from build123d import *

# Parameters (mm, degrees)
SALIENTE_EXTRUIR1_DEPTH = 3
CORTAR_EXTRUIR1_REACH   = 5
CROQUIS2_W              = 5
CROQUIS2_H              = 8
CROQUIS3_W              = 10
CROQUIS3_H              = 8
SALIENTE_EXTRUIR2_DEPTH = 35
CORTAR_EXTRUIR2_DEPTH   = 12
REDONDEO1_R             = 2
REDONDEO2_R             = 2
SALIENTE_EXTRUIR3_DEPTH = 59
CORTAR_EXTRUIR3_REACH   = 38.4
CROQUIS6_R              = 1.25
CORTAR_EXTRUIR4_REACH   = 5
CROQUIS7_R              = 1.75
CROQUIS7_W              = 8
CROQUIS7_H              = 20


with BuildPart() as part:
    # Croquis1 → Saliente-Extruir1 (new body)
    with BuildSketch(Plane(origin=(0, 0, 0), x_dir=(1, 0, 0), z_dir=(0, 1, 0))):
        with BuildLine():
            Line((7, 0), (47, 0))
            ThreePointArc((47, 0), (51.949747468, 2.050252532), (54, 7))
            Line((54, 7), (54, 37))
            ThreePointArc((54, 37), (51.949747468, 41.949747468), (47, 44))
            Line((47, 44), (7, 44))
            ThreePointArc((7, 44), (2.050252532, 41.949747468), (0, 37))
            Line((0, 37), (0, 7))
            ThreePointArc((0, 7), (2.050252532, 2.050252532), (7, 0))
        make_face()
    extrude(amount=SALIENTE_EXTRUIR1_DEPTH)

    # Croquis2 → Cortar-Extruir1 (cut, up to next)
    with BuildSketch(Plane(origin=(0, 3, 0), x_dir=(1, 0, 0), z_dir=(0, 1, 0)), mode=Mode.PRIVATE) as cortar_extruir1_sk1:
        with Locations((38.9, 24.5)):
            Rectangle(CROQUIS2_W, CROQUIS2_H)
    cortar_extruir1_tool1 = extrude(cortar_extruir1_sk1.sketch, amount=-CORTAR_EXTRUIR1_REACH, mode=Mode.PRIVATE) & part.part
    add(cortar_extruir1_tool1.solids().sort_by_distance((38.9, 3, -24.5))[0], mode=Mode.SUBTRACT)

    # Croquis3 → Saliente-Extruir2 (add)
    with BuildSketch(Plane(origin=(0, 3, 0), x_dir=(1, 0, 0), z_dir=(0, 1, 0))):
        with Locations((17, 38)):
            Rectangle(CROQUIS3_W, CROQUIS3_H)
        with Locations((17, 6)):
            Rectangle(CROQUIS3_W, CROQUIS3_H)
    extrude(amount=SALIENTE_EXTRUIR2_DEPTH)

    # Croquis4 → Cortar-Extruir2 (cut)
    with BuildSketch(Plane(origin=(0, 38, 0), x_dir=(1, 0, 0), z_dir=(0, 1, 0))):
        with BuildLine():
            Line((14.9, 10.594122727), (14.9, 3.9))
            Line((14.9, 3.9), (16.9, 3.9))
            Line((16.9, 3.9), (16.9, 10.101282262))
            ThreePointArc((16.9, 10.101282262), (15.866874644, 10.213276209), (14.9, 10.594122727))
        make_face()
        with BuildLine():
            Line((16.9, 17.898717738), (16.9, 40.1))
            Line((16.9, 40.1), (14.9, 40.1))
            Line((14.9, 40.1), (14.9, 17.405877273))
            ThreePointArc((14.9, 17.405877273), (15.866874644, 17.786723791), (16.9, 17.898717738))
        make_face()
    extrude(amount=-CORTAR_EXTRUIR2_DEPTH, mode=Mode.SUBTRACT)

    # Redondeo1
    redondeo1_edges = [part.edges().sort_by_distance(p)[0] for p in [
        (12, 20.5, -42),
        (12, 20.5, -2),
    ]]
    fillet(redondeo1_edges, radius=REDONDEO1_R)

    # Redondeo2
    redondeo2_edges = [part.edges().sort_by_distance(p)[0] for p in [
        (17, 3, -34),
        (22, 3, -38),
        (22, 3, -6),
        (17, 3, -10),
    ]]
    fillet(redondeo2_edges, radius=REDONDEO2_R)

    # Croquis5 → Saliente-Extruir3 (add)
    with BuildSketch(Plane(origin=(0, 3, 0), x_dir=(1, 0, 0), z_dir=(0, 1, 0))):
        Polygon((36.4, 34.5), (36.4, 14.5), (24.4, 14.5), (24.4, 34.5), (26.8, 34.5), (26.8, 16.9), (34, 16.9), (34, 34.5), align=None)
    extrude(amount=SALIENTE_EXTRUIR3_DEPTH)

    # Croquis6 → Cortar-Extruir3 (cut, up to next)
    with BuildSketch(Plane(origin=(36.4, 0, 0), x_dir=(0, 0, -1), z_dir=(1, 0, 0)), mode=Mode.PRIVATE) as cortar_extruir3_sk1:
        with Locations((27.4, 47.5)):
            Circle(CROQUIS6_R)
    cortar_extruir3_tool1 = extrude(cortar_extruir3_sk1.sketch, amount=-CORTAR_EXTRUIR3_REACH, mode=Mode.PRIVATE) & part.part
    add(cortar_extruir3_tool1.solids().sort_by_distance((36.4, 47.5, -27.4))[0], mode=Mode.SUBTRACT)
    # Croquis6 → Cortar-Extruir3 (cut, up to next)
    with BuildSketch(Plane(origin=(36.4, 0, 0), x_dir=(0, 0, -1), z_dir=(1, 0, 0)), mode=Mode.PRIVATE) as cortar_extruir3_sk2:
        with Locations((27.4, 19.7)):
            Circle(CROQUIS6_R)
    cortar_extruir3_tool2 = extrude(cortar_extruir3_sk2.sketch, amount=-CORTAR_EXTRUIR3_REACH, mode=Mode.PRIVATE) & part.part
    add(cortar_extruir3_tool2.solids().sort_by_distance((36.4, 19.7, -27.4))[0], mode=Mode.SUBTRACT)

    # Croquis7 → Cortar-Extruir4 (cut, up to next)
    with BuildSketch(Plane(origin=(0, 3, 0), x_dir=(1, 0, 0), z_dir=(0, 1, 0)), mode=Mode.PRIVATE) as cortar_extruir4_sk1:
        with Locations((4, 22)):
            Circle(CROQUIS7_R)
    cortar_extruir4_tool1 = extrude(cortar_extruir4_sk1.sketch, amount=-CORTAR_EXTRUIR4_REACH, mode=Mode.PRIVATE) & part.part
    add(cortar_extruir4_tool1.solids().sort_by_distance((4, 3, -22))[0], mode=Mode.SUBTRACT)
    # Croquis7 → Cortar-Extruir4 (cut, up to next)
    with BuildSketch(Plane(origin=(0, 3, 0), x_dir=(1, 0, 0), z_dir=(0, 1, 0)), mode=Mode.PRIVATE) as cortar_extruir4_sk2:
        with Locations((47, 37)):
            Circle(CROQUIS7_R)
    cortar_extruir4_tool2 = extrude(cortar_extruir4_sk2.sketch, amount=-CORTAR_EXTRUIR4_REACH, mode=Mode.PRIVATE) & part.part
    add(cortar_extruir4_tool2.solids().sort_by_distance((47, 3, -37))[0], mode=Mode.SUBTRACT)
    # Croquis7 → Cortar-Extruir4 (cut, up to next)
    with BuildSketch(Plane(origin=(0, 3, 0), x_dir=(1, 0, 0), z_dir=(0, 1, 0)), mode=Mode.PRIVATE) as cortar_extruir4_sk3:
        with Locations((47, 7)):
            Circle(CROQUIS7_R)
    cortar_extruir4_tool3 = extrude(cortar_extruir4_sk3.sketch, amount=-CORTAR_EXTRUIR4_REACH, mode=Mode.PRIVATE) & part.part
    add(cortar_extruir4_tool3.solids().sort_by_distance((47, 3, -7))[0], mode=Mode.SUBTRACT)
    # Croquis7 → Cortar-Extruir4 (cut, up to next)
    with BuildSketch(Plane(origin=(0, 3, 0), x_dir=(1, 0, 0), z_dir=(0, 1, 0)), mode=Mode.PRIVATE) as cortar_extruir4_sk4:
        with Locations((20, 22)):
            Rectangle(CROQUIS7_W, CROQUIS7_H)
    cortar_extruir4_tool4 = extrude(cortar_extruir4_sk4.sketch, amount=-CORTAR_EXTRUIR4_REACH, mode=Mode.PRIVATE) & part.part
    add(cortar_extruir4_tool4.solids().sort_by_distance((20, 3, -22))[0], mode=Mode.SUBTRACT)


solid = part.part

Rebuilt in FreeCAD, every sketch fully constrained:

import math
import FreeCAD as App
import Part
import Sketcher

V = App.Vector
Q = App.Units.Quantity


def edges_at(feature, points):
    """Names of the edges that pass closest to the given points."""
    edges = feature.Shape.Edges
    near = lambda p: min(range(len(edges)), key=lambda i: edges[i].distToShape(Part.Vertex(*p))[0])
    return sorted({f"Edge{near(p) + 1}" for p in points})

doc = App.newDocument("Part")
body = doc.addObject("PartDesign::Body", "Body")

sketch1 = body.newObject("Sketcher::SketchObject", "Sketch")
sketch1.AttachmentSupport = (doc.getObject("XZ_Plane"), [""])
sketch1.MapMode = "FlatFace"
sketch1.addGeometry(Part.LineSegment(V(7, 0, 0), V(47, 0, 0)), False)
sketch1.addGeometry(Part.ArcOfCircle(Part.Circle(V(47, -7, 0), V(0, 0, 1), 7), math.radians(0), math.radians(90)), False)
sketch1.addGeometry(Part.LineSegment(V(54, -7, 0), V(54, -37, 0)), False)
sketch1.addGeometry(Part.ArcOfCircle(Part.Circle(V(47, -37, 0), V(0, 0, 1), 7), math.radians(-90), math.radians(0)), False)
sketch1.addGeometry(Part.LineSegment(V(47, -44, 0), V(7, -44, 0)), False)
sketch1.addGeometry(Part.ArcOfCircle(Part.Circle(V(7, -37, 0), V(0, 0, 1), 7), math.radians(-180), math.radians(-90)), False)
sketch1.addGeometry(Part.LineSegment(V(0, -37, 0), V(0, -7, 0)), False)
sketch1.addGeometry(Part.ArcOfCircle(Part.Circle(V(7, -7, 0), V(0, 0, 1), 7), math.radians(90), math.radians(180)), False)
sketch1.addConstraint(Sketcher.Constraint("Tangent", 0, 2, 1, 2))
sketch1.addConstraint(Sketcher.Constraint("Tangent", 1, 1, 2, 1))
sketch1.addConstraint(Sketcher.Constraint("Tangent", 2, 2, 3, 2))
sketch1.addConstraint(Sketcher.Constraint("Tangent", 3, 1, 4, 1))
sketch1.addConstraint(Sketcher.Constraint("Tangent", 4, 2, 5, 2))
sketch1.addConstraint(Sketcher.Constraint("Tangent", 5, 1, 6, 1))
sketch1.addConstraint(Sketcher.Constraint("Tangent", 6, 2, 7, 2))
sketch1.addConstraint(Sketcher.Constraint("Tangent", 7, 1, 0, 1))
sketch1.addConstraint(Sketcher.Constraint("Horizontal", 0))
sketch1.addConstraint(Sketcher.Constraint("Vertical", 2))
sketch1.addConstraint(Sketcher.Constraint("Horizontal", 4))
sketch1.addConstraint(Sketcher.Constraint("Vertical", 6))
sketch1.addConstraint(Sketcher.Constraint("Equal", 1, 3))
sketch1.addConstraint(Sketcher.Constraint("Equal", 3, 5))
sketch1.addConstraint(Sketcher.Constraint("Equal", 5, 7))
sketch1.addConstraint(Sketcher.Constraint("PointOnObject", 0, 2, -1))
sketch1.addConstraint(Sketcher.Constraint("PointOnObject", 5, 1, -2))
sketch1.addConstraint(Sketcher.Constraint("Radius", 1, Q("7 mm")))
sketch1.addConstraint(Sketcher.Constraint("DistanceX", 0, 1, 0, 2, Q("40 mm")))
sketch1.addConstraint(Sketcher.Constraint("DistanceY", 2, 2, 2, 1, Q("30 mm")))
pad1 = body.newObject("PartDesign::Pad", "Pad")
pad1.Profile = sketch1
pad1.Length = 3
pad1.Reversed = True

sketch2 = body.newObject("Sketcher::SketchObject", "Sketch001")
sketch2.AttachmentSupport = (doc.getObject("XZ_Plane"), [""])
sketch2.MapMode = "FlatFace"
sketch2.AttachmentOffset = App.Placement(V(0, 0, -3), App.Rotation())
sketch2.addGeometry(Part.LineSegment(V(36, -28, 0), V(36, -20, 0)), False)
sketch2.addGeometry(Part.LineSegment(V(36, -20, 0), V(41, -20, 0)), False)
sketch2.addGeometry(Part.LineSegment(V(41, -20, 0), V(41, -28, 0)), False)
sketch2.addGeometry(Part.LineSegment(V(41, -28, 0), V(36, -28, 0)), False)
sketch2.addConstraint(Sketcher.Constraint("Coincident", 0, 2, 1, 1))
sketch2.addConstraint(Sketcher.Constraint("Coincident", 1, 2, 2, 1))
sketch2.addConstraint(Sketcher.Constraint("Coincident", 2, 2, 3, 1))
sketch2.addConstraint(Sketcher.Constraint("Coincident", 3, 2, 0, 1))
sketch2.addConstraint(Sketcher.Constraint("Vertical", 0))
sketch2.addConstraint(Sketcher.Constraint("Horizontal", 1))
sketch2.addConstraint(Sketcher.Constraint("Vertical", 2))
sketch2.addConstraint(Sketcher.Constraint("Horizontal", 3))
sketch2.addConstraint(Sketcher.Constraint("DistanceX", 1, 1, 1, 2, Q("5 mm")))
sketch2.addConstraint(Sketcher.Constraint("DistanceY", 0, 1, 0, 2, Q("8 mm")))
sketch2.addConstraint(Sketcher.Constraint("DistanceX", -1, 1, 0, 2, Q("36.4 mm")))
sketch2.addConstraint(Sketcher.Constraint("DistanceY", 0, 2, -1, 1, Q("20.5 mm")))
pocket1 = body.newObject("PartDesign::Pocket", "Pocket")
pocket1.Profile = sketch2
pocket1.Type = "UpToFirst"
pocket1.Reversed = True

sketch3 = body.newObject("Sketcher::SketchObject", "Sketch002")
sketch3.AttachmentSupport = (doc.getObject("XZ_Plane"), [""])
sketch3.MapMode = "FlatFace"
sketch3.AttachmentOffset = App.Placement(V(0, 0, -3), App.Rotation())
sketch3.addGeometry(Part.LineSegment(V(12, -42, 0), V(12, -34, 0)), False)
sketch3.addGeometry(Part.LineSegment(V(12, -34, 0), V(22, -34, 0)), False)
sketch3.addGeometry(Part.LineSegment(V(22, -34, 0), V(22, -42, 0)), False)
sketch3.addGeometry(Part.LineSegment(V(22, -42, 0), V(12, -42, 0)), False)
sketch3.addGeometry(Part.LineSegment(V(12, -10, 0), V(12, -2, 0)), False)
sketch3.addGeometry(Part.LineSegment(V(12, -2, 0), V(22, -2, 0)), False)
sketch3.addGeometry(Part.LineSegment(V(22, -2, 0), V(22, -10, 0)), False)
sketch3.addGeometry(Part.LineSegment(V(22, -10, 0), V(12, -10, 0)), False)
sketch3.addConstraint(Sketcher.Constraint("Coincident", 0, 2, 1, 1))
sketch3.addConstraint(Sketcher.Constraint("Coincident", 1, 2, 2, 1))
sketch3.addConstraint(Sketcher.Constraint("Coincident", 2, 2, 3, 1))
sketch3.addConstraint(Sketcher.Constraint("Coincident", 3, 2, 0, 1))
sketch3.addConstraint(Sketcher.Constraint("Coincident", 4, 2, 5, 1))
sketch3.addConstraint(Sketcher.Constraint("Coincident", 5, 2, 6, 1))
sketch3.addConstraint(Sketcher.Constraint("Coincident", 6, 2, 7, 1))
sketch3.addConstraint(Sketcher.Constraint("Coincident", 7, 2, 4, 1))
sketch3.addConstraint(Sketcher.Constraint("Vertical", 0))
sketch3.addConstraint(Sketcher.Constraint("Horizontal", 1))
sketch3.addConstraint(Sketcher.Constraint("Vertical", 2))
sketch3.addConstraint(Sketcher.Constraint("Horizontal", 3))
sketch3.addConstraint(Sketcher.Constraint("Vertical", 4))
sketch3.addConstraint(Sketcher.Constraint("Horizontal", 5))
sketch3.addConstraint(Sketcher.Constraint("Vertical", 6))
sketch3.addConstraint(Sketcher.Constraint("Horizontal", 7))
sketch3.addConstraint(Sketcher.Constraint("Vertical", 3, 2, 4, 2))
sketch3.addConstraint(Sketcher.Constraint("Vertical", 2, 2, 5, 2))
sketch3.addConstraint(Sketcher.Constraint("Equal", 2, 4))
sketch3.addConstraint(Sketcher.Constraint("DistanceX", 1, 1, 1, 2, Q("10 mm")))
sketch3.addConstraint(Sketcher.Constraint("DistanceY", 0, 1, 0, 2, Q("8 mm")))
sketch3.addConstraint(Sketcher.Constraint("DistanceX", -1, 1, 0, 2, Q("12 mm")))
sketch3.addConstraint(Sketcher.Constraint("DistanceY", 0, 2, -1, 1, Q("34 mm")))
sketch3.addConstraint(Sketcher.Constraint("DistanceY", 4, 2, -1, 1, Q("2 mm")))
pad2 = body.newObject("PartDesign::Pad", "Pad001")
pad2.Profile = sketch3
pad2.Length = 35
pad2.Reversed = True

sketch4 = body.newObject("Sketcher::SketchObject", "Sketch003")
sketch4.AttachmentSupport = (doc.getObject("XZ_Plane"), [""])
sketch4.MapMode = "FlatFace"
sketch4.AttachmentOffset = App.Placement(V(0, 0, -38), App.Rotation())
sketch4.addGeometry(Part.LineSegment(V(14.9, -10.6, 0), V(14.9, -3.9, 0)), False)
sketch4.addGeometry(Part.LineSegment(V(14.9, -3.9, 0), V(16.9, -3.9, 0)), False)
sketch4.addGeometry(Part.LineSegment(V(16.9, -3.9, 0), V(16.9, -10.1, 0)), False)
sketch4.addGeometry(Part.ArcOfCircle(Part.Circle(V(16.8, -14, 0), V(0, 0, 1), 3.9), math.radians(89), math.radians(119)), False)
sketch4.addGeometry(Part.LineSegment(V(16.9, -17.9, 0), V(16.9, -40.1, 0)), False)
sketch4.addGeometry(Part.LineSegment(V(16.9, -40.1, 0), V(14.9, -40.1, 0)), False)
sketch4.addGeometry(Part.LineSegment(V(14.9, -40.1, 0), V(14.9, -17.4, 0)), False)
sketch4.addGeometry(Part.ArcOfCircle(Part.Circle(V(16.8, -14, 0), V(0, 0, 1), 3.9), math.radians(-119), math.radians(-89)), False)
sketch4.addConstraint(Sketcher.Constraint("Coincident", 0, 2, 1, 1))
sketch4.addConstraint(Sketcher.Constraint("Coincident", 1, 2, 2, 1))
sketch4.addConstraint(Sketcher.Constraint("Coincident", 2, 2, 3, 1))
sketch4.addConstraint(Sketcher.Constraint("Coincident", 3, 2, 0, 1))
sketch4.addConstraint(Sketcher.Constraint("Coincident", 4, 2, 5, 1))
sketch4.addConstraint(Sketcher.Constraint("Coincident", 5, 2, 6, 1))
sketch4.addConstraint(Sketcher.Constraint("Coincident", 6, 2, 7, 1))
sketch4.addConstraint(Sketcher.Constraint("Coincident", 7, 2, 4, 1))
sketch4.addConstraint(Sketcher.Constraint("Vertical", 0))
sketch4.addConstraint(Sketcher.Constraint("Horizontal", 1))
sketch4.addConstraint(Sketcher.Constraint("Vertical", 2))
sketch4.addConstraint(Sketcher.Constraint("Vertical", 4))
sketch4.addConstraint(Sketcher.Constraint("Horizontal", 5))
sketch4.addConstraint(Sketcher.Constraint("Vertical", 6))
sketch4.addConstraint(Sketcher.Constraint("Coincident", 7, 3, 3, 3))
sketch4.addConstraint(Sketcher.Constraint("Equal", 3, 7))
sketch4.addConstraint(Sketcher.Constraint("Vertical", 2, 2, 4, 2))
sketch4.addConstraint(Sketcher.Constraint("Vertical", 3, 2, 5, 2))
sketch4.addConstraint(Sketcher.Constraint("Radius", 3, Q("3.9 mm")))
sketch4.addConstraint(Sketcher.Constraint("DistanceX", 1, 1, 1, 2, Q("2 mm")))
sketch4.addConstraint(Sketcher.Constraint("DistanceY", 3, 3, -1, 1, Q("14 mm")))
sketch4.addConstraint(Sketcher.Constraint("DistanceX", -1, 1, 3, 3, Q("16.8 mm")))
sketch4.addConstraint(Sketcher.Constraint("DistanceX", -1, 1, 0, 2, Q("14.9 mm")))
sketch4.addConstraint(Sketcher.Constraint("DistanceY", 0, 2, -1, 1, Q("3.9 mm")))
sketch4.addConstraint(Sketcher.Constraint("DistanceY", 4, 2, -1, 1, Q("40.1 mm")))
pocket2 = body.newObject("PartDesign::Pocket", "Pocket001")
pocket2.Profile = sketch4
pocket2.Length = 12
pocket2.Reversed = True
doc.recompute()

fillet = body.newObject("PartDesign::Fillet", "Fillet")
fillet.Base = (pocket2, edges_at(pocket2, [(12, 20.5, -42), (12, 20.5, -2)]))
fillet.Radius = 2
doc.recompute()

fillet2 = body.newObject("PartDesign::Fillet", "Fillet001")
fillet2.Base = (fillet, edges_at(fillet, [
    (17, 3, -34),
    (22, 3, -38),
    (22, 3, -6),
    (17, 3, -10),
]))
fillet2.Radius = 2

sketch5 = body.newObject("Sketcher::SketchObject", "Sketch004")
sketch5.AttachmentSupport = (doc.getObject("XZ_Plane"), [""])
sketch5.MapMode = "FlatFace"
sketch5.AttachmentOffset = App.Placement(V(0, 0, -3), App.Rotation())
sketch5.addGeometry(Part.LineSegment(V(36.4, -14.5, 0), V(36.4, -34.5, 0)), False)
sketch5.addGeometry(Part.LineSegment(V(36.4, -34.5, 0), V(34, -34.5, 0)), False)
sketch5.addGeometry(Part.LineSegment(V(34, -34.5, 0), V(34, -16.9, 0)), False)
sketch5.addGeometry(Part.LineSegment(V(34, -16.9, 0), V(26.8, -16.9, 0)), False)
sketch5.addGeometry(Part.LineSegment(V(26.8, -16.9, 0), V(26.8, -34.5, 0)), False)
sketch5.addGeometry(Part.LineSegment(V(26.8, -34.5, 0), V(24.4, -34.5, 0)), False)
sketch5.addGeometry(Part.LineSegment(V(24.4, -34.5, 0), V(24.4, -14.5, 0)), False)
sketch5.addGeometry(Part.LineSegment(V(24.4, -14.5, 0), V(36.4, -14.5, 0)), False)
sketch5.addConstraint(Sketcher.Constraint("Coincident", 0, 2, 1, 1))
sketch5.addConstraint(Sketcher.Constraint("Coincident", 1, 2, 2, 1))
sketch5.addConstraint(Sketcher.Constraint("Coincident", 2, 2, 3, 1))
sketch5.addConstraint(Sketcher.Constraint("Coincident", 3, 2, 4, 1))
sketch5.addConstraint(Sketcher.Constraint("Coincident", 4, 2, 5, 1))
sketch5.addConstraint(Sketcher.Constraint("Coincident", 5, 2, 6, 1))
sketch5.addConstraint(Sketcher.Constraint("Coincident", 6, 2, 7, 1))
sketch5.addConstraint(Sketcher.Constraint("Coincident", 7, 2, 0, 1))
sketch5.addConstraint(Sketcher.Constraint("Vertical", 0))
sketch5.addConstraint(Sketcher.Constraint("Horizontal", 1))
sketch5.addConstraint(Sketcher.Constraint("Vertical", 2))
sketch5.addConstraint(Sketcher.Constraint("Horizontal", 3))
sketch5.addConstraint(Sketcher.Constraint("Vertical", 4))
sketch5.addConstraint(Sketcher.Constraint("Horizontal", 5))
sketch5.addConstraint(Sketcher.Constraint("Vertical", 6))
sketch5.addConstraint(Sketcher.Constraint("Horizontal", 7))
sketch5.addConstraint(Sketcher.Constraint("Horizontal", 1, 2, 4, 2))
sketch5.addConstraint(Sketcher.Constraint("Equal", 1, 5))
sketch5.addConstraint(Sketcher.Constraint("DistanceX", 7, 1, 7, 2, Q("12 mm")))
sketch5.addConstraint(Sketcher.Constraint("DistanceY", 0, 2, 0, 1, Q("20 mm")))
sketch5.addConstraint(Sketcher.Constraint("DistanceX", 1, 2, 1, 1, Q("2.4 mm")))
sketch5.addConstraint(Sketcher.Constraint("DistanceY", 2, 1, 2, 2, Q("17.6 mm")))
sketch5.addConstraint(Sketcher.Constraint("DistanceX", -1, 1, 1, 2, Q("34 mm")))
sketch5.addConstraint(Sketcher.Constraint("DistanceY", 0, 2, -1, 1, Q("34.5 mm")))
pad3 = body.newObject("PartDesign::Pad", "Pad002")
pad3.Profile = sketch5
pad3.Length = 59
pad3.Reversed = True

sketch6 = body.newObject("Sketcher::SketchObject", "Sketch005")
sketch6.AttachmentSupport = (doc.getObject("YZ_Plane"), [""])
sketch6.MapMode = "FlatFace"
sketch6.AttachmentOffset = App.Placement(V(0, 0, 36.4), App.Rotation())
sketch6.addGeometry(Part.Circle(V(47.5, -27.4, 0), V(0, 0, 1), 1.2), False)
sketch6.addConstraint(Sketcher.Constraint("Diameter", 0, Q("2.5 mm")))
sketch6.addConstraint(Sketcher.Constraint("DistanceX", -1, 1, 0, 3, Q("47.5 mm")))
sketch6.addConstraint(Sketcher.Constraint("DistanceY", 0, 3, -1, 1, Q("27.4 mm")))
pocket3 = body.newObject("PartDesign::Pocket", "Pocket002")
pocket3.Profile = sketch6
pocket3.Type = "UpToFirst"

sketch7 = body.newObject("Sketcher::SketchObject", "Sketch006")
sketch7.AttachmentSupport = (doc.getObject("YZ_Plane"), [""])
sketch7.MapMode = "FlatFace"
sketch7.AttachmentOffset = App.Placement(V(0, 0, 36.4), App.Rotation())
sketch7.addGeometry(Part.Circle(V(19.7, -27.4, 0), V(0, 0, 1), 1.2), False)
sketch7.addConstraint(Sketcher.Constraint("Diameter", 0, Q("2.5 mm")))
sketch7.addConstraint(Sketcher.Constraint("DistanceX", -1, 1, 0, 3, Q("19.7 mm")))
sketch7.addConstraint(Sketcher.Constraint("DistanceY", 0, 3, -1, 1, Q("27.4 mm")))
pocket4 = body.newObject("PartDesign::Pocket", "Pocket003")
pocket4.Profile = sketch7
pocket4.Type = "UpToFirst"

sketch8 = body.newObject("Sketcher::SketchObject", "Sketch007")
sketch8.AttachmentSupport = (doc.getObject("XZ_Plane"), [""])
sketch8.MapMode = "FlatFace"
sketch8.AttachmentOffset = App.Placement(V(0, 0, -3), App.Rotation())
sketch8.addGeometry(Part.Circle(V(4, -22, 0), V(0, 0, 1), 1.8), False)
sketch8.addConstraint(Sketcher.Constraint("Diameter", 0, Q("3.5 mm")))
sketch8.addConstraint(Sketcher.Constraint("DistanceX", -1, 1, 0, 3, Q("4 mm")))
sketch8.addConstraint(Sketcher.Constraint("DistanceY", 0, 3, -1, 1, Q("22 mm")))
pocket5 = body.newObject("PartDesign::Pocket", "Pocket004")
pocket5.Profile = sketch8
pocket5.Type = "UpToFirst"
pocket5.Reversed = True

sketch9 = body.newObject("Sketcher::SketchObject", "Sketch008")
sketch9.AttachmentSupport = (doc.getObject("XZ_Plane"), [""])
sketch9.MapMode = "FlatFace"
sketch9.AttachmentOffset = App.Placement(V(0, 0, -3), App.Rotation())
sketch9.addGeometry(Part.Circle(V(47, -37, 0), V(0, 0, 1), 1.8), False)
sketch9.addConstraint(Sketcher.Constraint("Diameter", 0, Q("3.5 mm")))
sketch9.addConstraint(Sketcher.Constraint("DistanceX", -1, 1, 0, 3, Q("47 mm")))
sketch9.addConstraint(Sketcher.Constraint("DistanceY", 0, 3, -1, 1, Q("37 mm")))
pocket6 = body.newObject("PartDesign::Pocket", "Pocket005")
pocket6.Profile = sketch9
pocket6.Type = "UpToFirst"
pocket6.Reversed = True

sketch10 = body.newObject("Sketcher::SketchObject", "Sketch009")
sketch10.AttachmentSupport = (doc.getObject("XZ_Plane"), [""])
sketch10.MapMode = "FlatFace"
sketch10.AttachmentOffset = App.Placement(V(0, 0, -3), App.Rotation())
sketch10.addGeometry(Part.Circle(V(47, -7, 0), V(0, 0, 1), 1.8), False)
sketch10.addConstraint(Sketcher.Constraint("Diameter", 0, Q("3.5 mm")))
sketch10.addConstraint(Sketcher.Constraint("DistanceX", -1, 1, 0, 3, Q("47 mm")))
sketch10.addConstraint(Sketcher.Constraint("DistanceY", 0, 3, -1, 1, Q("7 mm")))
pocket7 = body.newObject("PartDesign::Pocket", "Pocket006")
pocket7.Profile = sketch10
pocket7.Type = "UpToFirst"
pocket7.Reversed = True

sketch11 = body.newObject("Sketcher::SketchObject", "Sketch010")
sketch11.AttachmentSupport = (doc.getObject("XZ_Plane"), [""])
sketch11.MapMode = "FlatFace"
sketch11.AttachmentOffset = App.Placement(V(0, 0, -3), App.Rotation())
sketch11.addGeometry(Part.LineSegment(V(16, -32, 0), V(16, -12, 0)), False)
sketch11.addGeometry(Part.LineSegment(V(16, -12, 0), V(24, -12, 0)), False)
sketch11.addGeometry(Part.LineSegment(V(24, -12, 0), V(24, -32, 0)), False)
sketch11.addGeometry(Part.LineSegment(V(24, -32, 0), V(16, -32, 0)), False)
sketch11.addConstraint(Sketcher.Constraint("Coincident", 0, 2, 1, 1))
sketch11.addConstraint(Sketcher.Constraint("Coincident", 1, 2, 2, 1))
sketch11.addConstraint(Sketcher.Constraint("Coincident", 2, 2, 3, 1))
sketch11.addConstraint(Sketcher.Constraint("Coincident", 3, 2, 0, 1))
sketch11.addConstraint(Sketcher.Constraint("Vertical", 0))
sketch11.addConstraint(Sketcher.Constraint("Horizontal", 1))
sketch11.addConstraint(Sketcher.Constraint("Vertical", 2))
sketch11.addConstraint(Sketcher.Constraint("Horizontal", 3))
sketch11.addConstraint(Sketcher.Constraint("DistanceX", 1, 1, 1, 2, Q("8 mm")))
sketch11.addConstraint(Sketcher.Constraint("DistanceY", 0, 1, 0, 2, Q("20 mm")))
sketch11.addConstraint(Sketcher.Constraint("DistanceX", -1, 1, 0, 2, Q("16 mm")))
sketch11.addConstraint(Sketcher.Constraint("DistanceY", 0, 2, -1, 1, Q("12 mm")))
pocket8 = body.newObject("PartDesign::Pocket", "Pocket007")
pocket8.Profile = sketch11
pocket8.Type = "UpToFirst"
pocket8.Reversed = True

doc.recompute()
